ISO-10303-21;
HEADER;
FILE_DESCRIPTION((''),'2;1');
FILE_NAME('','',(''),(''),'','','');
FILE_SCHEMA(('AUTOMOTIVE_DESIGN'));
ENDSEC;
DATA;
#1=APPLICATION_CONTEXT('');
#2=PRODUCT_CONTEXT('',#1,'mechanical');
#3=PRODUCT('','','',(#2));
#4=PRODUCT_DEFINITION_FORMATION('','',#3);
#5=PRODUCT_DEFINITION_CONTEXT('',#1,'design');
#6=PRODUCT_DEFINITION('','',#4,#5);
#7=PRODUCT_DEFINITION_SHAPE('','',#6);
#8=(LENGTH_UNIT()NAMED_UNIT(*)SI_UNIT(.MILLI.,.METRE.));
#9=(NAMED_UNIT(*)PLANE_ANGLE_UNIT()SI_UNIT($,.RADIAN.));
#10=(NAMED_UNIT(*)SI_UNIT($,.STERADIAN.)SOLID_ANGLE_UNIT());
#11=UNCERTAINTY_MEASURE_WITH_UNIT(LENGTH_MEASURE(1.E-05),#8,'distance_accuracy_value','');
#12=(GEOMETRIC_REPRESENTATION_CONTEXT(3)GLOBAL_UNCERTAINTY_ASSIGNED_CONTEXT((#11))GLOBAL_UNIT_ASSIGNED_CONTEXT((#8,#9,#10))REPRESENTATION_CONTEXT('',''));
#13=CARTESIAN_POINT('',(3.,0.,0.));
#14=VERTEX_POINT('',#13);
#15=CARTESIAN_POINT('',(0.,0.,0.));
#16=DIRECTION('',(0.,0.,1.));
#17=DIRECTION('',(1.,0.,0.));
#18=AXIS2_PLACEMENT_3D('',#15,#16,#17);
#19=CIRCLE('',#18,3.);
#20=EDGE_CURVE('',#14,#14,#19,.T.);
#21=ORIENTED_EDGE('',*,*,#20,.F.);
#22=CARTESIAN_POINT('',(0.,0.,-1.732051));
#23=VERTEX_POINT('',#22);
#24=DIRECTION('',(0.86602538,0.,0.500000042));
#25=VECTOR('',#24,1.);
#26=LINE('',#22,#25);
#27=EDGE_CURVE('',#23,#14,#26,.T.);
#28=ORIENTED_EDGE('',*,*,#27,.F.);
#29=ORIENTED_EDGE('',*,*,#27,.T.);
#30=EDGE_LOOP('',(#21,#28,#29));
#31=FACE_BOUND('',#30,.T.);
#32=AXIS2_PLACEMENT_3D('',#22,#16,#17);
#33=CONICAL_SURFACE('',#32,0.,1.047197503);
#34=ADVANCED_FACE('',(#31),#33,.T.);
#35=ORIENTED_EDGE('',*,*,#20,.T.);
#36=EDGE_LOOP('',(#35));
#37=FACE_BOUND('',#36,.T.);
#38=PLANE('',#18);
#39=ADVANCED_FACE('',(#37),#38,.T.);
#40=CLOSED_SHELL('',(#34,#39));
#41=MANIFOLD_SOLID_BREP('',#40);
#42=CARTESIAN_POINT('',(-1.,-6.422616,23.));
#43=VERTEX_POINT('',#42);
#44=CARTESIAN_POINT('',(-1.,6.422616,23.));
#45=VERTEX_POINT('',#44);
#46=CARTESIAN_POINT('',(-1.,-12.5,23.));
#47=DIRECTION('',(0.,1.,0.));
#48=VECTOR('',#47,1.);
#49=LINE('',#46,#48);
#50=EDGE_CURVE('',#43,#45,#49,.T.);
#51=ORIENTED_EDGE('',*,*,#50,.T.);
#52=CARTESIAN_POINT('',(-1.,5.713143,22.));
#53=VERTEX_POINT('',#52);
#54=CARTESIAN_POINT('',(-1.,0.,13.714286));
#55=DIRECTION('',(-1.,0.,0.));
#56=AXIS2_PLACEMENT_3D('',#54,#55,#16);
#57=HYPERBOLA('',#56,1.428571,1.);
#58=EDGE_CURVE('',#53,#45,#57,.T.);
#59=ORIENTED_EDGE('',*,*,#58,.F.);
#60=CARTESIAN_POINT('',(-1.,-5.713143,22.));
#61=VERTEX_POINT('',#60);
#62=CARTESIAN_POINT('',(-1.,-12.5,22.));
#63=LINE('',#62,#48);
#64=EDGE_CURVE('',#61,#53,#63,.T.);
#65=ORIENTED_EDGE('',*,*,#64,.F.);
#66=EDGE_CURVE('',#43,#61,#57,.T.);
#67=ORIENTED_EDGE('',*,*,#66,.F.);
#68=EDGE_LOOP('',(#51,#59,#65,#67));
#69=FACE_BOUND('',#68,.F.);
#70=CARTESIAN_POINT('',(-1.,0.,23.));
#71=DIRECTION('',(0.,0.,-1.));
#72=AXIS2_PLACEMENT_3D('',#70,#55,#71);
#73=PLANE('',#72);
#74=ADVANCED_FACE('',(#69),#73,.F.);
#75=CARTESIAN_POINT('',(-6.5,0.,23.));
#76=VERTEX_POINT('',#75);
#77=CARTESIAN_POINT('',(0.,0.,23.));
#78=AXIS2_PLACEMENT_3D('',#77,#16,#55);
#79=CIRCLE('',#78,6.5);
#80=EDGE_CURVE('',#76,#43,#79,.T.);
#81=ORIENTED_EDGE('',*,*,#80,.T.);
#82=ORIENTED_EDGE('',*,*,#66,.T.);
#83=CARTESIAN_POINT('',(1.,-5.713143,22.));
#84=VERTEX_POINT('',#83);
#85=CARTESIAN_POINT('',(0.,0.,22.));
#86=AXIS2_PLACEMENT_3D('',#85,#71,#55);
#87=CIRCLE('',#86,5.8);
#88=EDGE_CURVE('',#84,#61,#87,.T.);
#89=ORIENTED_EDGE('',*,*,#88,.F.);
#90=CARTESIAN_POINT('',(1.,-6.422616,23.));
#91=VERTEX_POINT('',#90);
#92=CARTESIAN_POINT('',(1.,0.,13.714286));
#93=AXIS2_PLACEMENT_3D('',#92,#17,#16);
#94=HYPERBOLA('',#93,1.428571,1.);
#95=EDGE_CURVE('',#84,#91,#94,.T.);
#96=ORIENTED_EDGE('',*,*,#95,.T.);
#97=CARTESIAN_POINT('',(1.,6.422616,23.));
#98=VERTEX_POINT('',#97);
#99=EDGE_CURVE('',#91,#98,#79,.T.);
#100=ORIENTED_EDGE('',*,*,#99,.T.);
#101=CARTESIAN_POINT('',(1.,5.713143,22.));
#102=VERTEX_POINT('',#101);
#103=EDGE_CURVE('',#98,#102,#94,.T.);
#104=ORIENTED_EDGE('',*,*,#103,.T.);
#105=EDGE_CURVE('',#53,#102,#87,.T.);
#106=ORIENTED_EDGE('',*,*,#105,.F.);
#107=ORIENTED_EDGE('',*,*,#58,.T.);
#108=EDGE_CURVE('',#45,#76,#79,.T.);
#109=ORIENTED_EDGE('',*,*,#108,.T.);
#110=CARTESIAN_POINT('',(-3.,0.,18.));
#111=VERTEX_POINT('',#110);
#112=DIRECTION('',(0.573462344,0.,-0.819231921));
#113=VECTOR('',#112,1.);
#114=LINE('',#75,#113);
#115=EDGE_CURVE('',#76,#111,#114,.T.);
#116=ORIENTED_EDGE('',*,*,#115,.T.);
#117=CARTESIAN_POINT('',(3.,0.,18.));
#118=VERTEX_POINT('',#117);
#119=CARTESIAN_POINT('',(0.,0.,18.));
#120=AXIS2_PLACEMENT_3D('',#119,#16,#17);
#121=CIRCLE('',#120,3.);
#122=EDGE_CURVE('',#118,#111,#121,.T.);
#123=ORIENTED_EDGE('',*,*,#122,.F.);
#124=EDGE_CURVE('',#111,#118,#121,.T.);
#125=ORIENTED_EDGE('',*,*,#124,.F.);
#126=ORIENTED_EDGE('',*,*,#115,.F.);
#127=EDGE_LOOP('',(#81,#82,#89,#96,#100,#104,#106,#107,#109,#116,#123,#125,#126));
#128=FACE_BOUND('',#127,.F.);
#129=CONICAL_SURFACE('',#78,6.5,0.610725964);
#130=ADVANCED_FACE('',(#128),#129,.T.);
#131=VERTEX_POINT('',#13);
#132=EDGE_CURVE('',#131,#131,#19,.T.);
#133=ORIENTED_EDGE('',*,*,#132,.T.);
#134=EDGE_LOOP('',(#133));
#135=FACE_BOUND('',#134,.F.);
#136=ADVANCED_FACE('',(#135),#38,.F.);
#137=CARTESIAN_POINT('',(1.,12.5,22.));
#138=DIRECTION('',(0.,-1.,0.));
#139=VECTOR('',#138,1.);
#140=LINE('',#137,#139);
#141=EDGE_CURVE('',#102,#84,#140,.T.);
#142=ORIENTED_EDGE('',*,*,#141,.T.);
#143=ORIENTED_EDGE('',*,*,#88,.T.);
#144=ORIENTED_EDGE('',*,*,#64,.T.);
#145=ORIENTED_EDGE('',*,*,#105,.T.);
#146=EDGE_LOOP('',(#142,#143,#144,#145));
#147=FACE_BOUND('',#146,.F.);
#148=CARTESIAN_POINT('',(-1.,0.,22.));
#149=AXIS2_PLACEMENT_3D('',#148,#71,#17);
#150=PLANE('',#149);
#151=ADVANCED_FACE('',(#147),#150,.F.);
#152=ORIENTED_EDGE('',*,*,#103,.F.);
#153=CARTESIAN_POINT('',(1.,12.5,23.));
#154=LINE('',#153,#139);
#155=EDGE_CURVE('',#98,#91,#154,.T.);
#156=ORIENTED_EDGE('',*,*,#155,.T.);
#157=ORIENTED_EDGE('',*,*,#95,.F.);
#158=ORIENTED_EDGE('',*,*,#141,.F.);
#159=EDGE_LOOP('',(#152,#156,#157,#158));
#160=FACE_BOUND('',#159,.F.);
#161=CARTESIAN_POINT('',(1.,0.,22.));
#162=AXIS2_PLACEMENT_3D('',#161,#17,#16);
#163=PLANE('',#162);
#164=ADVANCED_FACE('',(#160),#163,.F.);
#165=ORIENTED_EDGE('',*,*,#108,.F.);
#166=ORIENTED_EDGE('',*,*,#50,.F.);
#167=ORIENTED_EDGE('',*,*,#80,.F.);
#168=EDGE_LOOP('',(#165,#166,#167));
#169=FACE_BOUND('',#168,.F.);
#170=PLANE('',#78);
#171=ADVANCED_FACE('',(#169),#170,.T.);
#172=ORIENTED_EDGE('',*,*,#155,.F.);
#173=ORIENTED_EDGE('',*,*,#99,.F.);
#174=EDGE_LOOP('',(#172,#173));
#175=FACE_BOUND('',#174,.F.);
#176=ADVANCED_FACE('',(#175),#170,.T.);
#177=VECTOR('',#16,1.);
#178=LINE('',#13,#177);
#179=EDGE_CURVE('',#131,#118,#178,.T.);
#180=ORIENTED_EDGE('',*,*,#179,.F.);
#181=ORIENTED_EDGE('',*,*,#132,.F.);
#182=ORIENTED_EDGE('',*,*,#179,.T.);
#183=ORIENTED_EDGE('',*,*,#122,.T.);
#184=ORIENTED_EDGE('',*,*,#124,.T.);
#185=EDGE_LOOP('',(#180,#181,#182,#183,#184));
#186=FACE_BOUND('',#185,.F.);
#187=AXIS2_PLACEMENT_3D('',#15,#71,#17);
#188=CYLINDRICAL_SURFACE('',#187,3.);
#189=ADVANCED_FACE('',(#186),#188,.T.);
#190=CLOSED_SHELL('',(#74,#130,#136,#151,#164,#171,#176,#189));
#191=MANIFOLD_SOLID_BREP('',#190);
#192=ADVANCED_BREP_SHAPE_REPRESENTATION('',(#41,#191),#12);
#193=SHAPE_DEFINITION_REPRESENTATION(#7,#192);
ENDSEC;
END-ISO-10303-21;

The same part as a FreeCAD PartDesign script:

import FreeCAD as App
import Part
import Sketcher

V = App.Vector
Q = App.Units.Quantity


def add_polygon(sketch, points):
    """Adds a closed chain of lines whose ends are joined by coincident constraints."""
    first, n = sketch.GeometryCount, len(points)
    for a, b in zip(points, points[1:] + points[:1]):
        sketch.addGeometry(Part.LineSegment(App.Vector(*a, 0), App.Vector(*b, 0)), False)
    for i in range(n):
        sketch.addConstraint(Sketcher.Constraint("Coincident", first + i, 2, first + (i + 1) % n, 1))

doc = App.newDocument("Part")
body = doc.addObject("PartDesign::Body", "Body")

sketch1 = body.newObject("Sketcher::SketchObject", "Sketch")
sketch1.AttachmentSupport = (doc.getObject("XY_Plane"), [""])
sketch1.MapMode = "FlatFace"
sketch1.addGeometry(Part.Circle(V(0, 0, 0), V(0, 0, 1), 3), False)
sketch1.addConstraint([
    Sketcher.Constraint("Coincident", 0, 3, -1, 1),
    Sketcher.Constraint("Diameter", 0, Q("6 mm")),
])
pad1 = body.newObject("PartDesign::Pad", "Pad")
pad1.Profile = sketch1
pad1.Length = 18

sketch2 = body.newObject("Sketcher::SketchObject", "Sketch001")
sketch2.AttachmentSupport = (doc.getObject("XZ_Plane"), [""])
sketch2.MapMode = "FlatFace"
add_polygon(sketch2, [(-3, 18), (0, 18), (0, 23), (-6.5, 23)])
sketch2.addConstraint([
    Sketcher.Constraint("Horizontal", 0),
    Sketcher.Constraint("Vertical", 1),
    Sketcher.Constraint("Horizontal", 2),
    Sketcher.Constraint("PointOnObject", 0, 2, -2),
    Sketcher.Constraint("DistanceX", 0, 1, 0, 2, Q("3 mm")),
    Sketcher.Constraint("DistanceY", 1, 1, 1, 2, Q("5 mm")),
    Sketcher.Constraint("DistanceX", 2, 2, 2, 1, Q("6.5 mm")),
    Sketcher.Constraint("DistanceY", -1, 1, 0, 2, Q("18 mm")),
])
revolution = body.newObject("PartDesign::Revolution", "Revolution")
revolution.Profile = sketch2
revolution.ReferenceAxis = (sketch2, ["V_Axis"])
revolution.Angle = 360

sketch3 = body.newObject("Sketcher::SketchObject", "Sketch002")
sketch3.AttachmentSupport = (doc.getObject("XZ_Plane"), [""])
sketch3.MapMode = "FlatFace"
add_polygon(sketch3, [(-1, 22), (1, 22), (1, 23), (-1, 23)])
sketch3.addConstraint([
    Sketcher.Constraint("Horizontal", 0),
    Sketcher.Constraint("Vertical", 1),
    Sketcher.Constraint("Horizontal", 2),
    Sketcher.Constraint("Vertical", 3),
    Sketcher.Constraint("DistanceX", 0, 1, 0, 2, Q("2 mm")),
    Sketcher.Constraint("DistanceY", 1, 1, 1, 2, Q("1 mm")),
    Sketcher.Constraint("DistanceX", -1, 1, 0, 2, Q("1 mm")),
    Sketcher.Constraint("DistanceY", -1, 1, 0, 2, Q("22 mm")),
])
pocket1 = body.newObject("PartDesign::Pocket", "Pocket")
pocket1.Profile = sketch3
pocket1.Length = 25
pocket1.Midplane = True
body2 = doc.addObject("PartDesign::Body", "Body001")

sketch4 = body2.newObject("Sketcher::SketchObject", "Sketch003")
sketch4.AttachmentSupport = (doc.getObject("XZ_Plane001"), [""])
sketch4.MapMode = "FlatFace"
add_polygon(sketch4, [(3, 0), (0, 0), (0, -1.732051)])
sketch4.addConstraint([
    Sketcher.Constraint("Horizontal", 0),
    Sketcher.Constraint("Vertical", 1),
    Sketcher.Constraint("Coincident", 0, 2, -1, 1),
    Sketcher.Constraint("DistanceX", 0, 2, 0, 1, Q("3 mm")),
    Sketcher.Constraint("Angle", 2, Q("30.000003 deg")),
])
revolution2 = body2.newObject("PartDesign::Revolution", "Revolution001")
revolution2.Profile = sketch4
revolution2.ReferenceAxis = (sketch4, ["V_Axis"])
revolution2.Angle = 360

doc.recompute()
